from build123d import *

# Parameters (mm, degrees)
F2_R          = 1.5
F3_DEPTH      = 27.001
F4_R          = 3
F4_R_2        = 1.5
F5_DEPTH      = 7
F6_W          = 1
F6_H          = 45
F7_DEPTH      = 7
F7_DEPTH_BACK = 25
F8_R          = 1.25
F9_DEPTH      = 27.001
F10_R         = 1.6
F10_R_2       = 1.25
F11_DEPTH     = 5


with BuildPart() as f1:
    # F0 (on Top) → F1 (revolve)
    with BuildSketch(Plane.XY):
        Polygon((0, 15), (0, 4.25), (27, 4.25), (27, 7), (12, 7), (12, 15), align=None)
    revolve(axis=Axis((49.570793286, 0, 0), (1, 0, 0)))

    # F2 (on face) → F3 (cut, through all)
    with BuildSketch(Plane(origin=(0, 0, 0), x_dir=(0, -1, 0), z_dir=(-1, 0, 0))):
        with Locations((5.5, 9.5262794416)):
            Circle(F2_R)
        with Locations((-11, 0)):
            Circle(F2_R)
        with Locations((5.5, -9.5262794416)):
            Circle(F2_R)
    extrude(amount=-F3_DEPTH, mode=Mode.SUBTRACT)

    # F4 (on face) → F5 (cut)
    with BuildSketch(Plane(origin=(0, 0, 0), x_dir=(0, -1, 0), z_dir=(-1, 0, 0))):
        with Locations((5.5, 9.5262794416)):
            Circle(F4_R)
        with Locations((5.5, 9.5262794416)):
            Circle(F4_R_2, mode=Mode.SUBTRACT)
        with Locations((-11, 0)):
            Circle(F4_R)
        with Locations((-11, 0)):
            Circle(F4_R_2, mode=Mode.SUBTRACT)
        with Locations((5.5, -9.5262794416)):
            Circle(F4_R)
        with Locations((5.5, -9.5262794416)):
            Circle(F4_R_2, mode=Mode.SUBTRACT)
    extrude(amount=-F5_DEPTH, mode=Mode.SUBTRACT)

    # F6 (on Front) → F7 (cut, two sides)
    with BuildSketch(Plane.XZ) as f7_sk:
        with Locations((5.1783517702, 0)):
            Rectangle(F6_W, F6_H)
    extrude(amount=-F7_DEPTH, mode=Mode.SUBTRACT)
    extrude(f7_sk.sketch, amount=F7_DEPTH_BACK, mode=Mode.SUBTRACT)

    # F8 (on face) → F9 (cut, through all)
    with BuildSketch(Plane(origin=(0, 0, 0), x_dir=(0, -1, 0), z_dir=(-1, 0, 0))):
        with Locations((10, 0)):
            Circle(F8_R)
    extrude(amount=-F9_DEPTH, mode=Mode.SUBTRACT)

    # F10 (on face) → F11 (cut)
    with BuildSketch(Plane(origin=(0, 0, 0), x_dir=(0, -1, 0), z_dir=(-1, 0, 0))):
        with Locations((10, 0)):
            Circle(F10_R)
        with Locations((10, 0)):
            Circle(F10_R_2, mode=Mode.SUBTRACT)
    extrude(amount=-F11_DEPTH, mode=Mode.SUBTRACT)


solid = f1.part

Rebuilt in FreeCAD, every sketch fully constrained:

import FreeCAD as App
import Part
import Sketcher
from FreeCAD import Vector
Q = App.Units.Quantity

doc = App.newDocument("Part")
params = doc.addObject("Spreadsheet::Sheet", "Params")
for row, (alias, value) in enumerate([
    ("sketch1_width", "27 mm"),
    ("sketch1_width2", "15 mm"),
    ("sketch1_height", "8 mm"),
    ("sketch1_height2", "10.75 mm"),
    ("revolution_angle", "360 deg"),
    ("sketch2_diameter", "3 mm"),
    ("sketch3_diameter", "6 mm"),
    ("sketch3_diameter2", "3 mm"),
    ("pocket2_length", "7 mm"),
    ("sketch4_width", "1 mm"),
    ("sketch4_height", "45 mm"),
    ("pocket3_length", "7 mm"),
    ("pocket3_length2", "25 mm"),
    ("sketch5_diameter", "2.5 mm"),
    ("sketch6_diameter", "3.2 mm"),
    ("sketch6_diameter2", "2.5 mm"),
    ("pocket5_length", "5 mm"),
], start=1):
    params.set(f"A{row}", alias)
    params.set(f"B{row}", "=" + value)
    params.setAlias(f"B{row}", alias)

body = doc.addObject("PartDesign::Body", "Body")

sketch1 = doc.addObject("Sketcher::SketchObject", "Sketch")
body.addObject(sketch1)
sketch1.AttachmentSupport = (doc.XY_Plane, [""])
sketch1.MapMode = "FlatFace"
sketch1.addGeometry(Part.LineSegment(Vector(0, 15, 0), Vector(0, 4.2, 0)), False)
sketch1.addGeometry(Part.LineSegment(Vector(0, 4.2, 0), Vector(27, 4.2, 0)), False)
sketch1.addGeometry(Part.LineSegment(Vector(27, 4.2, 0), Vector(27, 7, 0)), False)
sketch1.addGeometry(Part.LineSegment(Vector(27, 7, 0), Vector(12, 7, 0)), False)
sketch1.addGeometry(Part.LineSegment(Vector(12, 7, 0), Vector(12, 15, 0)), False)
sketch1.addGeometry(Part.LineSegment(Vector(12, 15, 0), Vector(0, 15, 0)), False)
sketch1.addConstraint(Sketcher.Constraint("Coincident", 0, 2, 1, 1))
sketch1.addConstraint(Sketcher.Constraint("Coincident", 1, 2, 2, 1))
sketch1.addConstraint(Sketcher.Constraint("Coincident", 2, 2, 3, 1))
sketch1.addConstraint(Sketcher.Constraint("Coincident", 3, 2, 4, 1))
sketch1.addConstraint(Sketcher.Constraint("Coincident", 4, 2, 5, 1))
sketch1.addConstraint(Sketcher.Constraint("Coincident", 5, 2, 0, 1))
sketch1.addConstraint(Sketcher.Constraint("Vertical", 0))
sketch1.addConstraint(Sketcher.Constraint("Horizontal", 1))
sketch1.addConstraint(Sketcher.Constraint("Vertical", 2))
sketch1.addConstraint(Sketcher.Constraint("Horizontal", 3))
sketch1.addConstraint(Sketcher.Constraint("Vertical", 4))
sketch1.addConstraint(Sketcher.Constraint("Horizontal", 5))
sketch1.addConstraint(Sketcher.Constraint("PointOnObject", 0, 2, -2))
sketch1.addConstraint(Sketcher.Constraint("DistanceX", 1, 1, 1, 2, Q("27 mm")))
sketch1.addConstraint(Sketcher.Constraint("DistanceX", 3, 2, 3, 1, Q("15 mm")))
sketch1.addConstraint(Sketcher.Constraint("DistanceY", 4, 1, 4, 2, Q("8 mm")))
sketch1.addConstraint(Sketcher.Constraint("DistanceY", -1, 1, 2, 2, Q("7 mm")))
sketch1.addConstraint(Sketcher.Constraint("DistanceY", 0, 2, 0, 1, Q("10.75 mm")))
sketch1.setExpression("Constraints[13]", "Params.sketch1_width")
sketch1.setExpression("Constraints[14]", "Params.sketch1_width2")
sketch1.setExpression("Constraints[15]", "Params.sketch1_height")
sketch1.setExpression("Constraints[17]", "Params.sketch1_height2")
revolution = doc.addObject("PartDesign::Revolution", "Revolution")
body.addObject(revolution)
revolution.Profile = sketch1
revolution.ReferenceAxis = (sketch1, ["H_Axis"])
revolution.setExpression("Angle", "Params.revolution_angle")

sketch2 = doc.addObject("Sketcher::SketchObject", "Sketch001")
body.addObject(sketch2)
sketch2.AttachmentSupport = (doc.YZ_Plane, [""])
sketch2.MapMode = "FlatFace"
sketch2.addGeometry(Part.Circle(Vector(-5.5, 9.5, 0), Vector(0, 0, 1), 1.5), False)
sketch2.addGeometry(Part.Circle(Vector(11, 0, 0), Vector(0, 0, 1), 1.5), False)
sketch2.addGeometry(Part.Circle(Vector(-5.5, -9.5, 0), Vector(0, 0, 1), 1.5), False)
sketch2.addConstraint(Sketcher.Constraint("Equal", 0, 1))
sketch2.addConstraint(Sketcher.Constraint("Equal", 1, 2))
sketch2.addConstraint(Sketcher.Constraint("Symmetric", 0, 3, 2, 3, -1))
sketch2.addConstraint(Sketcher.Constraint("PointOnObject", 1, 3, -1))
sketch2.addConstraint(Sketcher.Constraint("Diameter", 0, Q("3 mm")))
sketch2.addConstraint(Sketcher.Constraint("DistanceX", -1, 1, 1, 3, Q("11 mm")))
sketch2.addConstraint(Sketcher.Constraint("DistanceX", 0, 3, -1, 1, Q("5.5 mm")))
sketch2.addConstraint(Sketcher.Constraint("DistanceY", -1, 1, 0, 3, Q("9.526279 mm")))
sketch2.setExpression("Constraints[4]", "Params.sketch2_diameter")
pocket1 = doc.addObject("PartDesign::Pocket", "Pocket")
body.addObject(pocket1)
pocket1.Profile = sketch2
pocket1.Type = "ThroughAll"
pocket1.Reversed = True

sketch3 = doc.addObject("Sketcher::SketchObject", "Sketch002")
body.addObject(sketch3)
sketch3.AttachmentSupport = (doc.YZ_Plane, [""])
sketch3.MapMode = "FlatFace"
sketch3.addGeometry(Part.Circle(Vector(-5.5, 9.5, 0), Vector(0, 0, 1), 3), False)
sketch3.addGeometry(Part.Circle(Vector(-5.5, 9.5, 0), Vector(0, 0, 1), 1.5), False)
sketch3.addGeometry(Part.Circle(Vector(11, 0, 0), Vector(0, 0, 1), 3), False)
sketch3.addGeometry(Part.Circle(Vector(11, 0, 0), Vector(0, 0, 1), 1.5), False)
sketch3.addGeometry(Part.Circle(Vector(-5.5, -9.5, 0), Vector(0, 0, 1), 3), False)
sketch3.addGeometry(Part.Circle(Vector(-5.5, -9.5, 0), Vector(0, 0, 1), 1.5), False)
sketch3.addConstraint(Sketcher.Constraint("Coincident", 1, 3, 0, 3))
sketch3.addConstraint(Sketcher.Constraint("Coincident", 3, 3, 2, 3))
sketch3.addConstraint(Sketcher.Constraint("Coincident", 5, 3, 4, 3))
sketch3.addConstraint(Sketcher.Constraint("Equal", 0, 2))
sketch3.addConstraint(Sketcher.Constraint("Equal", 1, 3))
sketch3.addConstraint(Sketcher.Constraint("Equal", 2, 4))
sketch3.addConstraint(Sketcher.Constraint("Equal", 3, 5))
sketch3.addConstraint(Sketcher.Constraint("Symmetric", 0, 3, 4, 3, -1))
sketch3.addConstraint(Sketcher.Constraint("PointOnObject", 2, 3, -1))
sketch3.addConstraint(Sketcher.Constraint("Diameter", 0, Q("6 mm")))
sketch3.addConstraint(Sketcher.Constraint("Diameter", 1, Q("3 mm")))
sketch3.addConstraint(Sketcher.Constraint("DistanceX", -1, 1, 2, 3, Q("11 mm")))
sketch3.addConstraint(Sketcher.Constraint("DistanceX", 0, 3, -1, 1, Q("5.5 mm")))
sketch3.addConstraint(Sketcher.Constraint("DistanceY", -1, 1, 0, 3, Q("9.526279 mm")))
sketch3.setExpression("Constraints[9]", "Params.sketch3_diameter")
sketch3.setExpression("Constraints[10]", "Params.sketch3_diameter2")
pocket2 = doc.addObject("PartDesign::Pocket", "Pocket001")
body.addObject(pocket2)
pocket2.Profile = sketch3
pocket2.setExpression("Length", "Params.pocket2_length")
pocket2.Reversed = True

sketch4 = doc.addObject("Sketcher::SketchObject", "Sketch003")
body.addObject(sketch4)
sketch4.AttachmentSupport = (doc.XZ_Plane, [""])
sketch4.MapMode = "FlatFace"
sketch4.addGeometry(Part.LineSegment(Vector(4.7, 22.5, 0), Vector(4.7, -22.5, 0)), False)
sketch4.addGeometry(Part.LineSegment(Vector(4.7, -22.5, 0), Vector(5.7, -22.5, 0)), False)
sketch4.addGeometry(Part.LineSegment(Vector(5.7, -22.5, 0), Vector(5.7, 22.5, 0)), False)
sketch4.addGeometry(Part.LineSegment(Vector(5.7, 22.5, 0), Vector(4.7, 22.5, 0)), False)
sketch4.addConstraint(Sketcher.Constraint("Coincident", 0, 2, 1, 1))
sketch4.addConstraint(Sketcher.Constraint("Coincident", 1, 2, 2, 1))
sketch4.addConstraint(Sketcher.Constraint("Coincident", 2, 2, 3, 1))
sketch4.addConstraint(Sketcher.Constraint("Coincident", 3, 2, 0, 1))
sketch4.addConstraint(Sketcher.Constraint("Vertical", 0))
sketch4.addConstraint(Sketcher.Constraint("Horizontal", 1))
sketch4.addConstraint(Sketcher.Constraint("Vertical", 2))
sketch4.addConstraint(Sketcher.Constraint("Horizontal", 3))
sketch4.addConstraint(Sketcher.Constraint("DistanceX", 1, 1, 1, 2, Q("1 mm")))
sketch4.addConstraint(Sketcher.Constraint("DistanceY", 0, 2, 0, 1, Q("45 mm")))
sketch4.addConstraint(Sketcher.Constraint("DistanceY", 0, 2, -1, 1, Q("22.5 mm")))
sketch4.addConstraint(Sketcher.Constraint("DistanceX", -1, 1, 0, 2, Q("4.678352 mm")))
sketch4.setExpression("Constraints[8]", "Params.sketch4_width")
sketch4.setExpression("Constraints[9]", "Params.sketch4_height")
pocket3 = doc.addObject("PartDesign::Pocket", "Pocket002")
body.addObject(pocket3)
pocket3.Profile = sketch4
pocket3.Type = "TwoLengths"
pocket3.setExpression("Length", "Params.pocket3_length")
pocket3.setExpression("Length2", "Params.pocket3_length2")

sketch5 = doc.addObject("Sketcher::SketchObject", "Sketch004")
body.addObject(sketch5)
sketch5.AttachmentSupport = (doc.YZ_Plane, [""])
sketch5.MapMode = "FlatFace"
sketch5.addGeometry(Part.Circle(Vector(-10, 0, 0), Vector(0, 0, 1), 1.2), False)
sketch5.addConstraint(Sketcher.Constraint("PointOnObject", 0, 3, -1))
sketch5.addConstraint(Sketcher.Constraint("Diameter", 0, Q("2.5 mm")))
sketch5.addConstraint(Sketcher.Constraint("DistanceX", 0, 3, -1, 1, Q("10 mm")))
sketch5.setExpression("Constraints[1]", "Params.sketch5_diameter")
pocket4 = doc.addObject("PartDesign::Pocket", "Pocket003")
body.addObject(pocket4)
pocket4.Profile = sketch5
pocket4.Type = "ThroughAll"
pocket4.Reversed = True

sketch6 = doc.addObject("Sketcher::SketchObject", "Sketch005")
body.addObject(sketch6)
sketch6.AttachmentSupport = (doc.YZ_Plane, [""])
sketch6.MapMode = "FlatFace"
sketch6.addGeometry(Part.Circle(Vector(-10, 0, 0), Vector(0, 0, 1), 1.6), False)
sketch6.addGeometry(Part.Circle(Vector(-10, 0, 0), Vector(0, 0, 1), 1.2), False)
sketch6.addConstraint(Sketcher.Constraint("Coincident", 1, 3, 0, 3))
sketch6.addConstraint(Sketcher.Constraint("PointOnObject", 0, 3, -1))
sketch6.addConstraint(Sketcher.Constraint("Diameter", 0, Q("3.2 mm")))
sketch6.addConstraint(Sketcher.Constraint("Diameter", 1, Q("2.5 mm")))
sketch6.addConstraint(Sketcher.Constraint("DistanceX", 0, 3, -1, 1, Q("10 mm")))
sketch6.setExpression("Constraints[2]", "Params.sketch6_diameter")
sketch6.setExpression("Constraints[3]", "Params.sketch6_diameter2")
pocket5 = doc.addObject("PartDesign::Pocket", "Pocket004")
body.addObject(pocket5)
pocket5.Profile = sketch6
pocket5.setExpression("Length", "Params.pocket5_length")
pocket5.Reversed = True

doc.recompute()
